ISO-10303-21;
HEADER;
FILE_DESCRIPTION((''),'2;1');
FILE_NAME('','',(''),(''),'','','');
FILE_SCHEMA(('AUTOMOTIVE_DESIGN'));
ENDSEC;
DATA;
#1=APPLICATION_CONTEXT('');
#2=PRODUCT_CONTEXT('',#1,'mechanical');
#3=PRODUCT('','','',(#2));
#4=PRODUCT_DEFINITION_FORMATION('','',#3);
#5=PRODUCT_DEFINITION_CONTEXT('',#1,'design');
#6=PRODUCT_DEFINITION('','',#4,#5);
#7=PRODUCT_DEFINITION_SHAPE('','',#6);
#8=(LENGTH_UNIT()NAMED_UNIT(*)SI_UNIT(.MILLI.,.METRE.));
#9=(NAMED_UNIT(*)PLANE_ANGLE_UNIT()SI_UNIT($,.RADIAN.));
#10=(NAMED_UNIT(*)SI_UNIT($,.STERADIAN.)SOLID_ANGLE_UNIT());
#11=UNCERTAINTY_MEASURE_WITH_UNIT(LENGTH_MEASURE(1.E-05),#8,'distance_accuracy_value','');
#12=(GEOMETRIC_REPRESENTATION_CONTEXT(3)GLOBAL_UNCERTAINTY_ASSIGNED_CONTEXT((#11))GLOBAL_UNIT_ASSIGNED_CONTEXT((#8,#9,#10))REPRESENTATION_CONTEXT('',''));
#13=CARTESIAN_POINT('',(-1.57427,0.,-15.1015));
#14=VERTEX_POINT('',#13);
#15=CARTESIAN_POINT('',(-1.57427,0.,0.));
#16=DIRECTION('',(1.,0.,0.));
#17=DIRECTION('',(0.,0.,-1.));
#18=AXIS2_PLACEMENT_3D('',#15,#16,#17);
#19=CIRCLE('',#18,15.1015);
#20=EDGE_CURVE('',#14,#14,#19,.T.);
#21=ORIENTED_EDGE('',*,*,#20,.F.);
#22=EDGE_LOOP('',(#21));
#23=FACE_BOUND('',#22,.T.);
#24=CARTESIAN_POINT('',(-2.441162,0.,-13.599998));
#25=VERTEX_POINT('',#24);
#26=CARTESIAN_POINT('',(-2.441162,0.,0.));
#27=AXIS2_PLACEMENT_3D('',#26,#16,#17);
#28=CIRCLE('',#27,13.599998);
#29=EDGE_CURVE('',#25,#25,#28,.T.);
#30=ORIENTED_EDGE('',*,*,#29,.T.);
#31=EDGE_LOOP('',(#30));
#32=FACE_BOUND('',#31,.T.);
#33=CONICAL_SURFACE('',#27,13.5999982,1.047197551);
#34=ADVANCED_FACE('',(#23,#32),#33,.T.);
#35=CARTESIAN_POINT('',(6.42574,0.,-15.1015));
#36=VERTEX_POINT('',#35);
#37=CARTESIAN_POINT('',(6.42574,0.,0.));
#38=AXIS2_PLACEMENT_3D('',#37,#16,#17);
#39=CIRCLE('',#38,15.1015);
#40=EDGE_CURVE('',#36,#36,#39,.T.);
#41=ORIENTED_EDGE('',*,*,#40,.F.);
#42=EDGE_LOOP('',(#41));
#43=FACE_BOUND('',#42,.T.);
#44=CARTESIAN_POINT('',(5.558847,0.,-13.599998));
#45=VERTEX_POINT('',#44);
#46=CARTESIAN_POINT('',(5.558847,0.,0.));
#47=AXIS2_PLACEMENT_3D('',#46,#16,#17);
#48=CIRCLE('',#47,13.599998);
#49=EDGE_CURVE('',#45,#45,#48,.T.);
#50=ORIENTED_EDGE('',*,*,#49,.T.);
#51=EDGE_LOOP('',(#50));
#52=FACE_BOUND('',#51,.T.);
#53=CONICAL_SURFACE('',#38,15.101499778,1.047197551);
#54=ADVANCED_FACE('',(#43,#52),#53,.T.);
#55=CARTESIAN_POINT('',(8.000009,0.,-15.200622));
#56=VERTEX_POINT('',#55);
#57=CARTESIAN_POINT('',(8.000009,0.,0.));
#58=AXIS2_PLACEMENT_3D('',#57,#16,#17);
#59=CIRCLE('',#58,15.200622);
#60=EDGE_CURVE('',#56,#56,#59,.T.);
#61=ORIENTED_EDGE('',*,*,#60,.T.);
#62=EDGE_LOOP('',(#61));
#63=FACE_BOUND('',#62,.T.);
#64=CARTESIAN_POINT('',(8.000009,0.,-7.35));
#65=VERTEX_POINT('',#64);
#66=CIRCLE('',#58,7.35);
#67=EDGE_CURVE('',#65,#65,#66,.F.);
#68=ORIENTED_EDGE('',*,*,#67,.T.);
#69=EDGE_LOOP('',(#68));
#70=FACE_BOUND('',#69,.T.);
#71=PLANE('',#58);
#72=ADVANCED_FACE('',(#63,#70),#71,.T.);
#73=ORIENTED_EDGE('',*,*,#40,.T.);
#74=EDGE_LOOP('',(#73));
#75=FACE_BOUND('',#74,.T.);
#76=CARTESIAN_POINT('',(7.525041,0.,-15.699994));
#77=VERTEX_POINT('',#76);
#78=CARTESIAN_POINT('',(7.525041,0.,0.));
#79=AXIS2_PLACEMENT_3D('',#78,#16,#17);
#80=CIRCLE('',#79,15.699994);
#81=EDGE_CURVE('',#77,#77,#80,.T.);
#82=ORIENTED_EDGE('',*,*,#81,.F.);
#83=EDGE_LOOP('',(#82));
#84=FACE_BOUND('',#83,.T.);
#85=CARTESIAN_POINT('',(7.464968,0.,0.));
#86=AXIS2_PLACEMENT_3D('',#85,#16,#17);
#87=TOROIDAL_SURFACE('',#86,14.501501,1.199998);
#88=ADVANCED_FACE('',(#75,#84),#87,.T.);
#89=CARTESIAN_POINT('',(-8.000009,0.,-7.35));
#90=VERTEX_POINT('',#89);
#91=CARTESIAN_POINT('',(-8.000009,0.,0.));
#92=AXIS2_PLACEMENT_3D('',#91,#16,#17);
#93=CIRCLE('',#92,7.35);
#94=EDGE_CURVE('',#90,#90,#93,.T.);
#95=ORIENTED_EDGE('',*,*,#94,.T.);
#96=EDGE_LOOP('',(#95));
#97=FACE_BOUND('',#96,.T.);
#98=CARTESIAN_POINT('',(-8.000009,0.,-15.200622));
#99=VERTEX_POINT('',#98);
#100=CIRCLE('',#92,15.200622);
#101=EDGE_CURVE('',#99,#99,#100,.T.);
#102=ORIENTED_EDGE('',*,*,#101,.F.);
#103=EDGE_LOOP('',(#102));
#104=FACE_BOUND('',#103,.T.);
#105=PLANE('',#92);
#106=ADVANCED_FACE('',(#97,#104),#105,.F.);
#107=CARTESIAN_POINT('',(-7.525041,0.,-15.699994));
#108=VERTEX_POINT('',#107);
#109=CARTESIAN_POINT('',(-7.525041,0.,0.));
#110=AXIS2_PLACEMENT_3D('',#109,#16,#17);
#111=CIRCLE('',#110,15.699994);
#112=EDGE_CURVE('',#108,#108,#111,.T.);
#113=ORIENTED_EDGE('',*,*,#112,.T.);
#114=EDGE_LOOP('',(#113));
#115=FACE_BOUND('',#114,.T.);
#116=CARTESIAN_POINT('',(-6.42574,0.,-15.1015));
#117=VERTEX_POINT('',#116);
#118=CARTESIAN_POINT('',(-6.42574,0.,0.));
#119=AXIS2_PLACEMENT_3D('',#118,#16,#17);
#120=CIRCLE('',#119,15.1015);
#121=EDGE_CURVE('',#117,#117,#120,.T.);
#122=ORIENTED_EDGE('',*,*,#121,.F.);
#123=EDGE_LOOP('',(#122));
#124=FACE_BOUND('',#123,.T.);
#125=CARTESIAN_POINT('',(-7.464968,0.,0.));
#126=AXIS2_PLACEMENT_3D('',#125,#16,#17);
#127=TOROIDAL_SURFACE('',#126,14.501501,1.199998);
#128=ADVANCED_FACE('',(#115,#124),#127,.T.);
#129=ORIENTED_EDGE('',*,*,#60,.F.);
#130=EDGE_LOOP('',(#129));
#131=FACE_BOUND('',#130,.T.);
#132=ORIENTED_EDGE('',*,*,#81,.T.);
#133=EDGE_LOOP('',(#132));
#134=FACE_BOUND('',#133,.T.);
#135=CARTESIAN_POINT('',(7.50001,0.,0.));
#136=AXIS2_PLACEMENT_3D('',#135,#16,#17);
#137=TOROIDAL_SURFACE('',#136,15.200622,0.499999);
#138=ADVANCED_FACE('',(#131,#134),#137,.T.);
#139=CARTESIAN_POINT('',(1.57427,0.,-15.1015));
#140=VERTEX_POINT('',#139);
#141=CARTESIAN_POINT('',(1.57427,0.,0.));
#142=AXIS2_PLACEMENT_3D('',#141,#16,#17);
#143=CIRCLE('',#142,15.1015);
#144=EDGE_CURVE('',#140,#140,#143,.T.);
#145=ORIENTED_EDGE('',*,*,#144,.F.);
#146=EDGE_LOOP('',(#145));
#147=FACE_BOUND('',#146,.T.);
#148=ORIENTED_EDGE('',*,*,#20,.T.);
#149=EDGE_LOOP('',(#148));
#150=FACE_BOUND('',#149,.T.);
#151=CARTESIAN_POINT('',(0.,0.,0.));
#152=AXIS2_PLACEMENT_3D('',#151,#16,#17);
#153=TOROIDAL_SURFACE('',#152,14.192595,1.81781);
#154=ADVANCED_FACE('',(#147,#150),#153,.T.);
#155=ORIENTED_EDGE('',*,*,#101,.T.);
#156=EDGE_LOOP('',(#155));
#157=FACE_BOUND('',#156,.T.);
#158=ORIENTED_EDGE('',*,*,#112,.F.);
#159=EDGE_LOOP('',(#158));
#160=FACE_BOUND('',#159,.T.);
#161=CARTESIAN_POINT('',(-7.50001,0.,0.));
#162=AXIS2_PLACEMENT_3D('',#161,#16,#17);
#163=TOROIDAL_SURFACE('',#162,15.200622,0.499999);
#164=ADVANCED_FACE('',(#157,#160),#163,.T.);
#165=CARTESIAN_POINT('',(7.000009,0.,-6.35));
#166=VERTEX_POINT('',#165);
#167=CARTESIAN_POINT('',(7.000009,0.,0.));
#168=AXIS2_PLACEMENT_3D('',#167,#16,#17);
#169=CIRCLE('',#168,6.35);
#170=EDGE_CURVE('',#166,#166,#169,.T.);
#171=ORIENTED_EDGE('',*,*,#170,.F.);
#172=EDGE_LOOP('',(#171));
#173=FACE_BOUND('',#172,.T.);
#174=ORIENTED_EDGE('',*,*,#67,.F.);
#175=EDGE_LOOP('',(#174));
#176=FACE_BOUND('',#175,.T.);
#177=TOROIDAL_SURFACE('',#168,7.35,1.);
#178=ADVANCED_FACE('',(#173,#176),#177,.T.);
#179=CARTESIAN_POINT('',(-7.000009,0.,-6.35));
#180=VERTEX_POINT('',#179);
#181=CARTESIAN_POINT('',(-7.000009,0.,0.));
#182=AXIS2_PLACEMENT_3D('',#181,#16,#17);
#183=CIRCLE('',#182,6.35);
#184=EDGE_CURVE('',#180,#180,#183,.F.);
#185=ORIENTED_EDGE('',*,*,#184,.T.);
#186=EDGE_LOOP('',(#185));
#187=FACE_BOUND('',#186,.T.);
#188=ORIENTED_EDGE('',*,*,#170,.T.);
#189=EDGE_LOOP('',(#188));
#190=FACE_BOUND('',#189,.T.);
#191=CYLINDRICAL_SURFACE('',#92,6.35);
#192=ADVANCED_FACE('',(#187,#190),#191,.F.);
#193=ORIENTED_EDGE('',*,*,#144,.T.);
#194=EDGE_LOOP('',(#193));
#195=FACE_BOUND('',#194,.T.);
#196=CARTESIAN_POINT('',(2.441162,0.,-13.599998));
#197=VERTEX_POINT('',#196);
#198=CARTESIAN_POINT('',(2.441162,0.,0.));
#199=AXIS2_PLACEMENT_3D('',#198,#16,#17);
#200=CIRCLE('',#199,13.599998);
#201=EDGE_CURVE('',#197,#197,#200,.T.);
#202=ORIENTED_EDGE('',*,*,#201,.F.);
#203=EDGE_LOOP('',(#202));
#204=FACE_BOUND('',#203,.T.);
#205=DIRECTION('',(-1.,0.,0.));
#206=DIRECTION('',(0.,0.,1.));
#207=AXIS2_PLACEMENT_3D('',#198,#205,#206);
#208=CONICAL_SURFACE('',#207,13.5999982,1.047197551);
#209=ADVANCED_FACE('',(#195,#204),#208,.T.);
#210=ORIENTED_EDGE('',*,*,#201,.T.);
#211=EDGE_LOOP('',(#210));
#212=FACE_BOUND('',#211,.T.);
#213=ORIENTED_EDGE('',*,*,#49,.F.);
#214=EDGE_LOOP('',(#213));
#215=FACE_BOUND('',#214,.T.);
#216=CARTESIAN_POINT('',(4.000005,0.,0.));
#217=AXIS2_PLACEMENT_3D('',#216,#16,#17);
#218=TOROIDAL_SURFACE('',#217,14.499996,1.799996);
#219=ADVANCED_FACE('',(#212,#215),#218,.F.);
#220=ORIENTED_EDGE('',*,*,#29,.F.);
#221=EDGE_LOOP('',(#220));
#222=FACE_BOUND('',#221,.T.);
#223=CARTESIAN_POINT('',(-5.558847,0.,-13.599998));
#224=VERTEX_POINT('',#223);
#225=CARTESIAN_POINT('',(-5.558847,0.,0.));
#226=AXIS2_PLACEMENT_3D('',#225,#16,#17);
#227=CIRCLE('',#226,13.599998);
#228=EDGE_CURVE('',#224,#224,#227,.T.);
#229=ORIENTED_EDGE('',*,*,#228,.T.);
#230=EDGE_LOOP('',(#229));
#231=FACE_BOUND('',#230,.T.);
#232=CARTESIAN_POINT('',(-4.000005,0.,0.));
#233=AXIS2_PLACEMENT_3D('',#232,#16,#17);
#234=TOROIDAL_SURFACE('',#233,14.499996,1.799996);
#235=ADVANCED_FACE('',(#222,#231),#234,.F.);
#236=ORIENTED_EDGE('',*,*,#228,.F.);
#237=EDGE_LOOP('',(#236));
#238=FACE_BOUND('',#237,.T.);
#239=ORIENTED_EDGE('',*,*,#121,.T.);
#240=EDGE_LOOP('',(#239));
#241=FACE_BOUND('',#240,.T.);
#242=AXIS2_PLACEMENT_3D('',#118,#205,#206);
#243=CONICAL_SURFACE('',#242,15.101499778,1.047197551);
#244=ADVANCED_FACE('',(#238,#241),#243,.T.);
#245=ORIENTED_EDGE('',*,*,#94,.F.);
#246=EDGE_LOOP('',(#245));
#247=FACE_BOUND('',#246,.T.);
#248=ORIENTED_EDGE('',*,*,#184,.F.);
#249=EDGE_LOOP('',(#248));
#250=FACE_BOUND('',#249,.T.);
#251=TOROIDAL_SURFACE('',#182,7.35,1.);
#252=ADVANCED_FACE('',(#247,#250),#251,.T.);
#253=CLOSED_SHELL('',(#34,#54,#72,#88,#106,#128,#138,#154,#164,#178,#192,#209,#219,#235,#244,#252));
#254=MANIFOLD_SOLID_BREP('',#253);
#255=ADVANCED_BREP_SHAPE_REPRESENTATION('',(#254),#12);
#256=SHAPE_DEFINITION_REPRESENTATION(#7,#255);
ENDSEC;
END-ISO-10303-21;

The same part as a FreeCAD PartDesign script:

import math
import FreeCAD as App
import Part
import Sketcher
Q = App.Units.Quantity


def edges_at(feature, points):
    """Names of the edges that pass closest to the given points."""
    edges = feature.Shape.Edges
    near = lambda p: min(range(len(edges)), key=lambda i: edges[i].distToShape(Part.Vertex(*p))[0])
    return sorted({f"Edge{near(p) + 1}" for p in points})

doc = App.newDocument("Part")
body = doc.addObject("PartDesign::Body", "Body")

sketch1 = body.newObject("Sketcher::SketchObject", "Sketch")
sketch1.AttachmentSupport = (doc.getObject("XY_Plane"), [""])
sketch1.MapMode = "FlatFace"
sketch1.addGeometry(Part.ArcOfCircle(Part.Circle(App.Vector(0, 14.19, 0), App.Vector(0, 0, 1), 1.82), math.radians(30), math.radians(150)), False)
sketch1.addGeometry(Part.LineSegment(App.Vector(-1.57, 15.1, 0), App.Vector(-2.44, 13.6, 0)), False)
sketch1.addGeometry(Part.ArcOfCircle(Part.Circle(App.Vector(-4, 14.5, 0), App.Vector(0, 0, 1), 1.8), math.radians(-150), math.radians(-30)), False)
sketch1.addGeometry(Part.LineSegment(App.Vector(-5.56, 13.6, 0), App.Vector(-6.43, 15.1, 0)), False)
sketch1.addGeometry(Part.ArcOfCircle(Part.Circle(App.Vector(-7.46, 14.5, 0), App.Vector(0, 0, 1), 1.2), math.radians(30), math.radians(93)), False)
sketch1.addGeometry(Part.ArcOfCircle(Part.Circle(App.Vector(-7.5, 15.2, 0), App.Vector(0, 0, 1), 0.5), math.radians(93), math.radians(180)), False)
sketch1.addGeometry(Part.LineSegment(App.Vector(-8, 15.2, 0), App.Vector(-8, 0, 0)), False)
sketch1.addGeometry(Part.LineSegment(App.Vector(-8, 0, 0), App.Vector(8, 0, 0)), False)
sketch1.addGeometry(Part.LineSegment(App.Vector(8, 0, 0), App.Vector(8, 15.2, 0)), False)
sketch1.addGeometry(Part.ArcOfCircle(Part.Circle(App.Vector(7.5, 15.2, 0), App.Vector(0, 0, 1), 0.5), math.radians(0), math.radians(87)), False)
sketch1.addGeometry(Part.ArcOfCircle(Part.Circle(App.Vector(7.46, 14.5, 0), App.Vector(0, 0, 1), 1.2), math.radians(87), math.radians(150)), False)
sketch1.addGeometry(Part.LineSegment(App.Vector(6.43, 15.1, 0), App.Vector(5.56, 13.6, 0)), False)
sketch1.addGeometry(Part.ArcOfCircle(Part.Circle(App.Vector(4, 14.5, 0), App.Vector(0, 0, 1), 1.8), math.radians(-150), math.radians(-30)), False)
sketch1.addGeometry(Part.LineSegment(App.Vector(2.44, 13.6, 0), App.Vector(1.57, 15.1, 0)), False)
sketch1.addConstraint(Sketcher.Constraint("Tangent", 0, 2, 1, 1))
sketch1.addConstraint(Sketcher.Constraint("Tangent", 1, 2, 2, 2))
sketch1.addConstraint(Sketcher.Constraint("Tangent", 2, 1, 3, 1))
sketch1.addConstraint(Sketcher.Constraint("Tangent", 3, 2, 4, 1))
sketch1.addConstraint(Sketcher.Constraint("Tangent", 4, 2, 5, 1))
sketch1.addConstraint(Sketcher.Constraint("Tangent", 5, 2, 6, 1))
sketch1.addConstraint(Sketcher.Constraint("Coincident", 6, 2, 7, 1))
sketch1.addConstraint(Sketcher.Constraint("Coincident", 7, 2, 8, 1))
sketch1.addConstraint(Sketcher.Constraint("Tangent", 8, 2, 9, 1))
sketch1.addConstraint(Sketcher.Constraint("Tangent", 9, 2, 10, 1))
sketch1.addConstraint(Sketcher.Constraint("Tangent", 10, 2, 11, 1))
sketch1.addConstraint(Sketcher.Constraint("Tangent", 11, 2, 12, 2))
sketch1.addConstraint(Sketcher.Constraint("Tangent", 12, 1, 13, 1))
sketch1.addConstraint(Sketcher.Constraint("Tangent", 13, 2, 0, 1))
sketch1.addConstraint(Sketcher.Constraint("Vertical", 6))
sketch1.addConstraint(Sketcher.Constraint("Horizontal", 7))
sketch1.addConstraint(Sketcher.Constraint("Vertical", 8))
sketch1.addConstraint(Sketcher.Constraint("Equal", 5, 9))
sketch1.addConstraint(Sketcher.Constraint("Equal", 4, 10))
sketch1.addConstraint(Sketcher.Constraint("Equal", 2, 12))
sketch1.addConstraint(Sketcher.Constraint("Symmetric", 6, 2, 7, 2, -1, 1))
sketch1.addConstraint(Sketcher.Constraint("Symmetric", 4, 3, 10, 3, -2))
sketch1.addConstraint(Sketcher.Constraint("Symmetric", 2, 3, 12, 3, -2))
sketch1.addConstraint(Sketcher.Constraint("PointOnObject", 0, 3, -2))
sketch1.addConstraint(Sketcher.Constraint("Parallel", 1, 11))
sketch1.addConstraint(Sketcher.Constraint("Horizontal", 0, 2, 3, 2))
sketch1.addConstraint(Sketcher.Constraint("Radius", 5, 0.499999))
sketch1.addConstraint(Sketcher.Constraint("Angle", 1, Q("-120 deg")))
sketch1.addConstraint(Sketcher.Constraint("DistanceY", -1, 1, 1, 2, 13.599998))
sketch1.addConstraint(Sketcher.Constraint("DistanceY", 4, 3, 0, 2, 0.599999))
sketch1.addConstraint(Sketcher.Constraint("DistanceY", 1, 2, 2, 3, 0.899998))
sketch1.addConstraint(Sketcher.Constraint("Radius", 0, 1.81781))
sketch1.addConstraint(Sketcher.Constraint("DistanceX", 7, 1, 7, 2, 16.000019))
sketch1.addConstraint(Sketcher.Constraint("DistanceY", 6, 2, 6, 1, 15.200622))
revolution = body.newObject("PartDesign::Revolution", "Revolution")
revolution.Profile = sketch1
revolution.ReferenceAxis = (sketch1, ["H_Axis"])
revolution.Angle = 360

sketch2 = body.newObject("Sketcher::SketchObject", "Sketch001")
sketch2.AttachmentSupport = (doc.getObject("YZ_Plane"), [""])
sketch2.MapMode = "FlatFace"
sketch2.AttachmentOffset = App.Placement(App.Vector(0, 0, 8.000009), App.Rotation())
sketch2.addGeometry(Part.Circle(App.Vector(0, 0, 0), App.Vector(0, 0, 1), 6), False)
sketch2.addConstraint(Sketcher.Constraint("Coincident", 0, 3, -1, 1))
sketch2.addConstraint(Sketcher.Constraint("Diameter", 0, 12.7))
pocket1 = body.newObject("PartDesign::Pocket", "Pocket")
pocket1.Profile = sketch2
pocket1.Type = "ThroughAll"
doc.recompute()

fillet = body.newObject("PartDesign::Fillet", "Fillet")
fillet.Base = (pocket1, edges_at(pocket1, [(-8, 0, 6.35), (8, 0, 6.35)]))
fillet.Radius = 1

doc.recompute()
